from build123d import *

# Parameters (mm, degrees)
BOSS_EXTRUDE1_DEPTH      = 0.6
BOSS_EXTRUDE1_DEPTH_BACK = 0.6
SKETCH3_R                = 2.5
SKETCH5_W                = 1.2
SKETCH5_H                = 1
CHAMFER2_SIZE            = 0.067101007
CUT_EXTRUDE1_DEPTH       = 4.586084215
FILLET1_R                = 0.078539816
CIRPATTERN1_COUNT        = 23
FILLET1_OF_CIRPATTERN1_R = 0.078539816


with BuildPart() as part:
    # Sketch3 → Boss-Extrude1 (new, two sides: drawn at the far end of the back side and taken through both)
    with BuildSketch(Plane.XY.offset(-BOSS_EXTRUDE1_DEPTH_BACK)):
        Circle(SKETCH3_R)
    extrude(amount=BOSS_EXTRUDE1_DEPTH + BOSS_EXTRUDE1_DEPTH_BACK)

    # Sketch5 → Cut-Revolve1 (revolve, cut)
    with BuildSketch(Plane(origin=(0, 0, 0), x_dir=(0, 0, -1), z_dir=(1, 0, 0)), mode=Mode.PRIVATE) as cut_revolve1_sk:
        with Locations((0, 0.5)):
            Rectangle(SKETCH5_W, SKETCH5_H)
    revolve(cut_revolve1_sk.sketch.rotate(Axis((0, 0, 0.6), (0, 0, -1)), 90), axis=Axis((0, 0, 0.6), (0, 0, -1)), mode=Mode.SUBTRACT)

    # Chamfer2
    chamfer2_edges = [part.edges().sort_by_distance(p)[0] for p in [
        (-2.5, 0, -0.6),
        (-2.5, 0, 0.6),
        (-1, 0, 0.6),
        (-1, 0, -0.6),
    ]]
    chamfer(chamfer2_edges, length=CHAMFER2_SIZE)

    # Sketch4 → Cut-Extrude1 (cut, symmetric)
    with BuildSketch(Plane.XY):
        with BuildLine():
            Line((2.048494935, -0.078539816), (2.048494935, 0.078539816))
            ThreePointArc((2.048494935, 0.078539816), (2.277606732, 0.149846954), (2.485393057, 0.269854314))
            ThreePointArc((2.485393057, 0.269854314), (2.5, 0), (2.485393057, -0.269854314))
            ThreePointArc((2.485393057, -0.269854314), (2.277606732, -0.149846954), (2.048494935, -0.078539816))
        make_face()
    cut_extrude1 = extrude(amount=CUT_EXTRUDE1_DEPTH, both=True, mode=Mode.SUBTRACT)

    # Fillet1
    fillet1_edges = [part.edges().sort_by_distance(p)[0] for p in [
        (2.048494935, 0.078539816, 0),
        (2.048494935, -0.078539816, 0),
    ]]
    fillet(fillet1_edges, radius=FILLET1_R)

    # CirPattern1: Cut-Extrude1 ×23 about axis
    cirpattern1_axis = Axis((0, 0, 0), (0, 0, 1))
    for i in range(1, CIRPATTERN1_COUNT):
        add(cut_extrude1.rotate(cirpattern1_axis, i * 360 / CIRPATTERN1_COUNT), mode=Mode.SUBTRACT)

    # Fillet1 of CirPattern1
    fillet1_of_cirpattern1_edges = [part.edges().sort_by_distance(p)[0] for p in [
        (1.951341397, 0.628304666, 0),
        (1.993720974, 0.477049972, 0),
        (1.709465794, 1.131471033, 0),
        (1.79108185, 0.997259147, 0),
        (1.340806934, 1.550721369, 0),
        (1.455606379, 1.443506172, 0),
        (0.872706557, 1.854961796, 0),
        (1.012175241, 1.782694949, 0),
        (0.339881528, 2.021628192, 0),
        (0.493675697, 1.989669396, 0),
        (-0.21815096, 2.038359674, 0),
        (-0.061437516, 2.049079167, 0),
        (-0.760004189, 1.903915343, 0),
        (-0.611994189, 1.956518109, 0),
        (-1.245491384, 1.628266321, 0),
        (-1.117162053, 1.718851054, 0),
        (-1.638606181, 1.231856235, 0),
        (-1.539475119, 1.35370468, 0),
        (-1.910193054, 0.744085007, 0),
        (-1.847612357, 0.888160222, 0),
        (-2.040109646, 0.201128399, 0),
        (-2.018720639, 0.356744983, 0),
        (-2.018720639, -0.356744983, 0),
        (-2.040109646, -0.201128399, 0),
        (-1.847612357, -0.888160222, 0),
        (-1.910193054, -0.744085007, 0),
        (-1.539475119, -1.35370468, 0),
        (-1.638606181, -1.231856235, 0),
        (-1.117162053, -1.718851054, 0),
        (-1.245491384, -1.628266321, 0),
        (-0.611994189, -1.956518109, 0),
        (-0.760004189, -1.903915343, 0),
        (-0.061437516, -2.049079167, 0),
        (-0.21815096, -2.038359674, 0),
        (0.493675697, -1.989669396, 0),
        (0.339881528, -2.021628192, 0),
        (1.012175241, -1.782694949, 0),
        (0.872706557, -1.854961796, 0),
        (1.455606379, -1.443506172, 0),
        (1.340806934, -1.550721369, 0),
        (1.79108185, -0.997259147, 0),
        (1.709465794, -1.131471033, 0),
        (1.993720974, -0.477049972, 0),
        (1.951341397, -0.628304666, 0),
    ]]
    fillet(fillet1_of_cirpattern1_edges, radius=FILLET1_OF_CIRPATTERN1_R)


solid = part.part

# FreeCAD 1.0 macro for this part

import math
import FreeCAD as App
import Part
import Sketcher

V = App.Vector


def edges_at(feature, points):
    """Names of the edges that pass closest to the given points."""
    edges = feature.Shape.Edges
    near = lambda p: min(range(len(edges)), key=lambda i: edges[i].distToShape(Part.Vertex(*p))[0])
    return sorted({f"Edge{near(p) + 1}" for p in points})


def add_polygon(sketch, points):
    """Adds a closed chain of lines whose ends are joined by coincident constraints."""
    first, n = sketch.GeometryCount, len(points)
    for a, b in zip(points, points[1:] + points[:1]):
        sketch.addGeometry(Part.LineSegment(App.Vector(*a, 0), App.Vector(*b, 0)), False)
    for i in range(n):
        sketch.addConstraint(Sketcher.Constraint("Coincident", first + i, 2, first + (i + 1) % n, 1))

doc = App.newDocument("Part")
params = doc.addObject("Spreadsheet::Sheet", "Params")
for row, (alias, value) in enumerate([
    ("sketch1_diameter", "5 mm"),
    ("pad1_length", "0.6 mm"),
    ("pad1_length2", "0.6 mm"),
    ("sketch2_width", "1 mm"),
    ("sketch2_height", "1.2 mm"),
    ("groove_angle", "360 deg"),
    ("chamfer_size", "0.067101 mm"),
    ("sketch3_radius", "2.5 mm"),
    ("pocket1_length", "9.172168 mm"),
    ("fillet_radius", "0.07854 mm"),
    ("fillet2_radius", "0.07854 mm"),
], start=1):
    params.set(f"A{row}", alias)
    params.set(f"B{row}", "=" + value)
    params.setAlias(f"B{row}", alias)

body = doc.addObject("PartDesign::Body", "Body")

sketch1 = body.newObject("Sketcher::SketchObject", "Sketch")
sketch1.AttachmentSupport = (doc.getObject("XY_Plane"), [""])
sketch1.MapMode = "FlatFace"
sketch1.addGeometry(Part.Circle(V(0, 0, 0), V(0, 0, 1), 2.5), False)
sketch1.addConstraint([
    Sketcher.Constraint("Coincident", 0, 3, -1, 1),
    Sketcher.Constraint("Diameter", 0, 5.0),
])
sketch1.setExpression("Constraints[1]", "Params.sketch1_diameter")
pad1 = body.newObject("PartDesign::Pad", "Pad")
pad1.Profile = sketch1
pad1.Type = "TwoLengths"
pad1.setExpression("Length", "Params.pad1_length")
pad1.setExpression("Length2", "Params.pad1_length2")

sketch2 = body.newObject("Sketcher::SketchObject", "Sketch001")
sketch2.AttachmentSupport = (doc.getObject("YZ_Plane"), [""])
sketch2.MapMode = "FlatFace"
add_polygon(sketch2, [(1, 0.6), (0, 0.6), (0, -0.6), (1, -0.6)])
sketch2.addConstraint([
    Sketcher.Constraint("Horizontal", 0),
    Sketcher.Constraint("Vertical", 1),
    Sketcher.Constraint("Horizontal", 2),
    Sketcher.Constraint("Vertical", 3),
    Sketcher.Constraint("Symmetric", 0, 2, 1, 2, -1, 1),
    Sketcher.Constraint("DistanceX", 0, 2, 0, 1, 1.0),
    Sketcher.Constraint("DistanceY", 1, 2, 1, 1, 1.2),
])
sketch2.setExpression("Constraints[9]", "Params.sketch2_width")
sketch2.setExpression("Constraints[10]", "Params.sketch2_height")
groove = body.newObject("PartDesign::Groove", "Groove")
groove.Profile = sketch2
groove.ReferenceAxis = (sketch2, ["V_Axis"])
groove.setExpression("Angle", "Params.groove_angle")
doc.recompute()

chamfer = body.newObject("PartDesign::Chamfer", "Chamfer")
chamfer.Base = (groove, edges_at(groove, [
    (-2.5, 0, -0.6),
    (-2.5, 0, 0.6),
    (-1, 0, 0.6),
    (-1, 0, -0.6),
]))
chamfer.setExpression("Size", "Params.chamfer_size")

sketch3 = body.newObject("Sketcher::SketchObject", "Sketch002")
sketch3.AttachmentSupport = (doc.getObject("XY_Plane"), [""])
sketch3.MapMode = "FlatFace"
sketch3.addGeometry([
    Part.LineSegment(V(2.05, 0.08, 0), V(2.05, -0.08, 0)),
    Part.ArcOfCircle(Part.Circle(V(1.84, -1.14, 0), V(0, 0, 1), 1.08), math.radians(54), math.radians(79)),
    Part.ArcOfCircle(Part.Circle(V(0, 0, 0), V(0, 0, 1), 2.5), math.radians(-6.2), math.radians(6.2)),
    Part.ArcOfCircle(Part.Circle(V(1.84, 1.14, 0), V(0, 0, 1), 1.08), math.radians(-79), math.radians(-54)),
], False)
sketch3.addConstraint([
    Sketcher.Constraint("Coincident", 0, 2, 1, 2),
    Sketcher.Constraint("Coincident", 1, 1, 2, 1),
    Sketcher.Constraint("Coincident", 2, 2, 3, 2),
    Sketcher.Constraint("Coincident", 3, 1, 0, 1),
    Sketcher.Constraint("Vertical", 0),
    Sketcher.Constraint("Coincident", 2, 3, -1, 1),
    Sketcher.Constraint("Equal", 1, 3),
    Sketcher.Constraint("Symmetric", 1, 3, 3, 3, -1),
    Sketcher.Constraint("Radius", 2, 2.5),
    Sketcher.Constraint("Radius", 1, 1.082991),
    Sketcher.Constraint("DistanceY", 0, 2, 0, 1, 0.15708),
    Sketcher.Constraint("DistanceX", 1, 3, 0, 2, 0.205298),
    Sketcher.Constraint("DistanceX", 0, 2, 1, 1, 0.436898),
])
sketch3.setExpression("Constraints[8]", "Params.sketch3_radius")
pocket1 = body.newObject("PartDesign::Pocket", "Pocket")
pocket1.Profile = sketch3
pocket1.setExpression("Length", "Params.pocket1_length")
pocket1.Midplane = True
doc.recompute()

fillet = body.newObject("PartDesign::Fillet", "Fillet")
fillet.Base = (pocket1, edges_at(pocket1, [(2.048, 0.079, 0), (2.048, -0.079, 0)]))
fillet.setExpression("Radius", "Params.fillet_radius")
doc.recompute()

polarpattern = body.newObject("PartDesign::PolarPattern", "PolarPattern")
polarpattern.Originals = [pocket1]
polarpattern.Axis = (doc.getObject("Z_Axis"), [""])
polarpattern.Angle = 360
polarpattern.Occurrences = 23
body.Tip = polarpattern
doc.recompute()

fillet2 = body.newObject("PartDesign::Fillet", "Fillet001")
fillet2.Base = (polarpattern, edges_at(polarpattern, [
    (1.951, 0.628, 0),
    (1.994, 0.477, 0),
    (1.709, 1.131, 0),
    (1.791, 0.997, 0),
    (1.341, 1.551, 0),
    (1.456, 1.444, 0),
    (0.873, 1.855, 0),
    (1.012, 1.783, 0),
    (0.34, 2.022, 0),
    (0.494, 1.99, 0),
    (-0.218, 2.038, 0),
    (-0.061, 2.049, 0),
    (-0.76, 1.904, 0),
    (-0.612, 1.957, 0),
    (-1.245, 1.628, 0),
    (-1.117, 1.719, 0),
    (-1.639, 1.232, 0),
    (-1.539, 1.354, 0),
    (-1.91, 0.744, 0),
    (-1.848, 0.888, 0),
    (-2.04, 0.201, 0),
    (-2.019, 0.357, 0),
    (-2.019, -0.357, 0),
    (-2.04, -0.201, 0),
    (-1.848, -0.888, 0),
    (-1.91, -0.744, 0),
    (-1.539, -1.354, 0),
    (-1.639, -1.232, 0),
    (-1.117, -1.719, 0),
    (-1.245, -1.628, 0),
    (-0.612, -1.957, 0),
    (-0.76, -1.904, 0),
    (-0.061, -2.049, 0),
    (-0.218, -2.038, 0),
    (0.494, -1.99, 0),
    (0.34, -2.022, 0),
    (1.012, -1.783, 0),
    (0.873, -1.855, 0),
    (1.456, -1.444, 0),
    (1.341, -1.551, 0),
    (1.791, -0.997, 0),
    (1.709, -1.131, 0),
    (1.994, -0.477, 0),
    (1.951, -0.628, 0),
]))
fillet2.setExpression("Radius", "Params.fillet2_radius")

doc.recompute()
